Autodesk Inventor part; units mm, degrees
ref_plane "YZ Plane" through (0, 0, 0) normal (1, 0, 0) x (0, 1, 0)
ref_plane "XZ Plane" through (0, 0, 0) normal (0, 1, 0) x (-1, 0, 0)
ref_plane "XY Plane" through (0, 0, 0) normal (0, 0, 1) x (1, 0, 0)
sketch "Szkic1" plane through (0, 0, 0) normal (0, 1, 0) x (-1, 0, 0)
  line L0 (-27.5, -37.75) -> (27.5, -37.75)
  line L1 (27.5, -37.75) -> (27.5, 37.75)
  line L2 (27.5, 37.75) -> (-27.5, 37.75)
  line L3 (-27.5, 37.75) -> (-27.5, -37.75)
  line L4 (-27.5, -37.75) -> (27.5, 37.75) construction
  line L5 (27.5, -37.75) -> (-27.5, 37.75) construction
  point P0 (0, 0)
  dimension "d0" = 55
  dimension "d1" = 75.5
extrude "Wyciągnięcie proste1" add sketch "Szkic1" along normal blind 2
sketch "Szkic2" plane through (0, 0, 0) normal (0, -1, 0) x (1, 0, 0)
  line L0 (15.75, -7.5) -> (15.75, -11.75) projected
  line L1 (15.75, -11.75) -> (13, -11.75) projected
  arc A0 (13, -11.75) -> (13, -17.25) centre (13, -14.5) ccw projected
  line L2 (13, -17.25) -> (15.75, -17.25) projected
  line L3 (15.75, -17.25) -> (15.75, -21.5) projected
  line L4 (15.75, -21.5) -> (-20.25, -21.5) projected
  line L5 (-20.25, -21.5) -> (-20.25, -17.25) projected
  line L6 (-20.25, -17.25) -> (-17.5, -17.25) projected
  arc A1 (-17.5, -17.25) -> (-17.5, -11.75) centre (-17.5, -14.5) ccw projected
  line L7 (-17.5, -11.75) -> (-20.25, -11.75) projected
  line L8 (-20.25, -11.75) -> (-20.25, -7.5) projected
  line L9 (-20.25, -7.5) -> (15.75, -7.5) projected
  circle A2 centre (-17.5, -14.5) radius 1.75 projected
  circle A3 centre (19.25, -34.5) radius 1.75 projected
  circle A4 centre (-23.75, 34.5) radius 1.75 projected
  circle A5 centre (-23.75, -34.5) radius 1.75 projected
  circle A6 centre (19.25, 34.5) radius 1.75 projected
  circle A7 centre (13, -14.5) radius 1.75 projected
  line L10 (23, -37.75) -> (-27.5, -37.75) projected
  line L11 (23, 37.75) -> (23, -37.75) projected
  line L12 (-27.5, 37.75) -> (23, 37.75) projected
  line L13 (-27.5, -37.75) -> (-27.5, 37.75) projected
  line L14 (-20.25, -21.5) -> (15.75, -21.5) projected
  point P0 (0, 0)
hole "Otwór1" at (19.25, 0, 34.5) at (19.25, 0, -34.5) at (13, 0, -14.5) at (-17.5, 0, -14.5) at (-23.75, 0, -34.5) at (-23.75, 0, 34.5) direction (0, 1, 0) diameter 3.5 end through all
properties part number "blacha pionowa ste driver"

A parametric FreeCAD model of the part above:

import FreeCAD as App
import Part
import Sketcher
Q = App.Units.Quantity

doc = App.newDocument("Part")
body = doc.addObject("PartDesign::Body", "Body")

# Sketch on XZ plane
sketch1 = body.newObject("Sketcher::SketchObject", "Sketch")
sketch1.AttachmentSupport = (doc.getObject("XZ_Plane"), [""])
sketch1.MapMode = "FlatFace"
sketch1.addGeometry([
    Part.LineSegment(App.Vector(28, 38, 0), App.Vector(28, -38, 0)),
    Part.LineSegment(App.Vector(28, -38, 0), App.Vector(-28, -38, 0)),
    Part.LineSegment(App.Vector(-28, -38, 0), App.Vector(-28, 38, 0)),
    Part.LineSegment(App.Vector(-28, 38, 0), App.Vector(28, 38, 0)),
], False)
sketch1.addConstraint([
    Sketcher.Constraint("Coincident", 0, 2, 1, 1),
    Sketcher.Constraint("Coincident", 1, 2, 2, 1),
    Sketcher.Constraint("Coincident", 2, 2, 3, 1),
    Sketcher.Constraint("Coincident", 3, 2, 0, 1),
    Sketcher.Constraint("Vertical", 0),
    Sketcher.Constraint("Horizontal", 1),
    Sketcher.Constraint("Vertical", 2),
    Sketcher.Constraint("Horizontal", 3),
    Sketcher.Constraint("Symmetric", 0, 2, 2, 2, -1, 1),
    Sketcher.Constraint("DistanceX", 1, 2, 1, 1, Q("55 mm")),
    Sketcher.Constraint("DistanceY", 0, 2, 0, 1, Q("75.5 mm")),
])
pad1 = body.newObject("PartDesign::Pad", "Pad")
pad1.Profile = sketch1
pad1.Length = 2
pad1.Reversed = True

# Sketch on XZ plane
sketch2 = body.newObject("Sketcher::SketchObject", "Sketch001")
sketch2.AttachmentSupport = (doc.getObject("XZ_Plane"), [""])
sketch2.MapMode = "FlatFace"
sketch2.addGeometry([
    Part.Circle(App.Vector(19.2, 34.5, 0), App.Vector(0, 0, 1), 1.8),  # 0
    Part.Circle(App.Vector(19.2, -34.5, 0), App.Vector(0, 0, 1), 1.8),  # 1
    Part.Circle(App.Vector(13, -14.5, 0), App.Vector(0, 0, 1), 1.8),  # 2
    Part.Circle(App.Vector(-17.5, -14.5, 0), App.Vector(0, 0, 1), 1.8),  # 3
    Part.Circle(App.Vector(-23.8, -34.5, 0), App.Vector(0, 0, 1), 1.8),  # 4
    Part.Circle(App.Vector(-23.8, 34.5, 0), App.Vector(0, 0, 1), 1.8),  # 5
], False)
sketch2.addConstraint([
    Sketcher.Constraint("Equal", 0, 1),
    Sketcher.Constraint("Equal", 1, 2),
    Sketcher.Constraint("Equal", 2, 3),
    Sketcher.Constraint("Equal", 3, 4),
    Sketcher.Constraint("Equal", 4, 5),
    Sketcher.Constraint("Symmetric", 0, 3, 1, 3, -1),
    Sketcher.Constraint("Symmetric", 4, 3, 5, 3, -1),
    Sketcher.Constraint("Horizontal", 2, 3, 3, 3),
    Sketcher.Constraint("Horizontal", 1, 3, 4, 3),
    Sketcher.Constraint("Diameter", 0, Q("3.5 mm")),
    Sketcher.Constraint("DistanceX", -1, 1, 2, 3, Q("13 mm")),
    Sketcher.Constraint("DistanceY", 1, 3, 0, 3, Q("69 mm")),
    Sketcher.Constraint("DistanceY", 1, 3, 2, 3, Q("20 mm")),
    Sketcher.Constraint("DistanceX", 4, 3, 1, 3, Q("43 mm")),
    Sketcher.Constraint("DistanceX", 3, 3, -1, 1, Q("17.5 mm")),
    Sketcher.Constraint("DistanceX", -1, 1, 0, 3, Q("19.25 mm")),
])
doc.recompute()
hole = body.newObject("PartDesign::Hole", "Hole")
hole.Profile = sketch2
hole.ThreadType = "None"
hole.Diameter = 3.5
hole.DepthType = "ThroughAll"

doc.recompute()
